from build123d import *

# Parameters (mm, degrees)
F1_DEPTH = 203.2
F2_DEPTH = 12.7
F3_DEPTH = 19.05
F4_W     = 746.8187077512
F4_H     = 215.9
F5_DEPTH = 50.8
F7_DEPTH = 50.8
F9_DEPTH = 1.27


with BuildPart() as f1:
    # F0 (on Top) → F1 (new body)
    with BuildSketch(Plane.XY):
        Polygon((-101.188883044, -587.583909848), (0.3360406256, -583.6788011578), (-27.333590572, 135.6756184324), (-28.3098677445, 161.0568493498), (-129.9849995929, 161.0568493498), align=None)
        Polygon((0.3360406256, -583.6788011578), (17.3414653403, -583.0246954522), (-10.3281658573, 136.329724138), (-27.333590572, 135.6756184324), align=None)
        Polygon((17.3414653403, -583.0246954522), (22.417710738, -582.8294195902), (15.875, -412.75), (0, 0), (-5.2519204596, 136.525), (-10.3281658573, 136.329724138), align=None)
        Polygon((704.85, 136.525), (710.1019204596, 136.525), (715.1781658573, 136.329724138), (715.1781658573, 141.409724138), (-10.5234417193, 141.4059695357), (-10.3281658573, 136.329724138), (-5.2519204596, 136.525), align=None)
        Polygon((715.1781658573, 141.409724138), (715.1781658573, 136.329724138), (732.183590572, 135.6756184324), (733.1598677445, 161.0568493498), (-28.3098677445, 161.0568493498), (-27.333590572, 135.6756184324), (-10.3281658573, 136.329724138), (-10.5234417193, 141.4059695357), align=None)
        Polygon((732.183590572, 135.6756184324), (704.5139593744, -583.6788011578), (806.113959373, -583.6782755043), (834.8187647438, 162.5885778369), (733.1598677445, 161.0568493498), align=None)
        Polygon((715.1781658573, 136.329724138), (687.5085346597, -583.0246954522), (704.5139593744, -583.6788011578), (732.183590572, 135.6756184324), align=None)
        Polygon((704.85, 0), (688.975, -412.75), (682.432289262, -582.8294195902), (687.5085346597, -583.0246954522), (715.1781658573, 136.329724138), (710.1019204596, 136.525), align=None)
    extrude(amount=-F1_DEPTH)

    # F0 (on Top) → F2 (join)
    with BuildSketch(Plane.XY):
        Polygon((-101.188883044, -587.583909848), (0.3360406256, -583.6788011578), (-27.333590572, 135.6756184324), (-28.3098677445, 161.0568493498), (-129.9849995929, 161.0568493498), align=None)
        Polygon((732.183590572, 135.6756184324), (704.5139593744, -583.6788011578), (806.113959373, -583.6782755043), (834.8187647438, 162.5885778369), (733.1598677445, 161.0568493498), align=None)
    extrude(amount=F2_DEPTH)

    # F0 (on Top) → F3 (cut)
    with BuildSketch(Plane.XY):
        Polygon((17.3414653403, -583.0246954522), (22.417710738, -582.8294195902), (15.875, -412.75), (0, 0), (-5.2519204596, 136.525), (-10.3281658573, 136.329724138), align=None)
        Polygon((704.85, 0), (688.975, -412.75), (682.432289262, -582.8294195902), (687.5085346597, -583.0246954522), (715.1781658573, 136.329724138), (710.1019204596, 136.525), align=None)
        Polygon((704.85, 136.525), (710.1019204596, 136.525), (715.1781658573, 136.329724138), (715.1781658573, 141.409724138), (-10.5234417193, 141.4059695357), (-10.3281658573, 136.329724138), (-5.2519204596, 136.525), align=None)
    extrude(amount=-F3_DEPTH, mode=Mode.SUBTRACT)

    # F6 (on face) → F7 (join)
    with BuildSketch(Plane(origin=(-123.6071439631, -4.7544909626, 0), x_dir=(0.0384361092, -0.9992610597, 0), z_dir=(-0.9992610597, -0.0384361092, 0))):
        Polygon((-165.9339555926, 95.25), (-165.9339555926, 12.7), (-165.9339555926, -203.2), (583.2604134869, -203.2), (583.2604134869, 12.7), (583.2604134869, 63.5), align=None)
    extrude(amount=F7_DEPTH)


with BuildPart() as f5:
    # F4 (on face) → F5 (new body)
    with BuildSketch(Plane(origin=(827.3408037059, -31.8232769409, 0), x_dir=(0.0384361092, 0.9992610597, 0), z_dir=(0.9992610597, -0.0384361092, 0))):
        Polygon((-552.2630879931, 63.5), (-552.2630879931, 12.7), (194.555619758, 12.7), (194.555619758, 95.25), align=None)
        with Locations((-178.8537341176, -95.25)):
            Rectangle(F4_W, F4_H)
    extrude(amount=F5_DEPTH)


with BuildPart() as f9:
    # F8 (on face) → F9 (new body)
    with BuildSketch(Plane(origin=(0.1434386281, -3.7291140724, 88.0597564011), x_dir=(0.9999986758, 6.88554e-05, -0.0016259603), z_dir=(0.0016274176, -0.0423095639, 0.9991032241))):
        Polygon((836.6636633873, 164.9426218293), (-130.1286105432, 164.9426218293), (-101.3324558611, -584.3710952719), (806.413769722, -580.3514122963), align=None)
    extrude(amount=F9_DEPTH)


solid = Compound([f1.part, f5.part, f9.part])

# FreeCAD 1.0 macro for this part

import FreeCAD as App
import Part
import Sketcher
from FreeCAD import Vector
Q = App.Units.Quantity

doc = App.newDocument("Part")
params = doc.addObject("Spreadsheet::Sheet", "Params")
for row, (alias, value) in enumerate([
    ("sketch1_length", "4 in"),
    ("sketch1_length2", "0.2 in"),
    ("sketch1_length3", "4.67 in"),
    ("sketch1_length4", "0.67 in"),
    ("pad1_length", "8 in"),
    ("sketch2_length", "4 in"),
    ("sketch2_length2", "1 in"),
    ("pad2_length", "0.5 in"),
    ("sketch3_height", "0.2 in"),
    ("sketch3_length", "0.2 in"),
    ("pocket1_length", "0.75 in"),
    ("sketch4_height", "10.5 in"),
    ("sketch4_height2", "11.75 in"),
    ("pad3_length", "2 in"),
    ("sketch5_height", "10.5 in"),
    ("sketch5_height2", "11.75 in"),
    ("pad4_length", "2 in"),
    ("pad5_length", "0.05 in"),
], start=1):
    params.set(f"A{row}", alias)
    params.set(f"B{row}", "=" + value)
    params.setAlias(f"B{row}", alias)

body = doc.addObject("PartDesign::Body", "Body")

sketch1 = body.newObject("Sketcher::SketchObject", "Sketch")
sketch1.AttachmentSupport = (doc.getObject("XY_Plane"), [""])
sketch1.MapMode = "FlatFace"
sketch1.addGeometry([
    Part.LineSegment(Vector(-101.188883, -587.58391, 0), Vector(17.341465, -583.024695, 0)),
    Part.LineSegment(Vector(17.341465, -583.024695, 0), Vector(22.417711, -582.82942, 0)),
    Part.LineSegment(Vector(22.417711, -582.82942, 0), Vector(15.875, -412.75, 0)),
    Part.LineSegment(Vector(15.875, -412.75, 0), Vector(0, 0, 0)),
    Part.LineSegment(Vector(0, 0, 0), Vector(-5.25192, 136.525, 0)),
    Part.LineSegment(Vector(-5.25192, 136.525, 0), Vector(710.10192, 136.525, 0)),
    Part.LineSegment(Vector(710.10192, 136.525, 0), Vector(704.85, 0, 0)),
    Part.LineSegment(Vector(704.85, 0, 0), Vector(688.975, -412.75, 0)),
    Part.LineSegment(Vector(688.975, -412.75, 0), Vector(682.432289, -582.82942, 0)),
    Part.LineSegment(Vector(682.432289, -582.82942, 0), Vector(687.508535, -583.024695, 0)),
    Part.LineSegment(Vector(687.508535, -583.024695, 0), Vector(704.513959, -583.678801, 0)),
    Part.LineSegment(Vector(704.513959, -583.678801, 0), Vector(806.113959, -583.678276, 0)),
    Part.LineSegment(Vector(806.113959, -583.678276, 0), Vector(834.818765, 162.588578, 0)),
    Part.LineSegment(Vector(834.818765, 162.588578, 0), Vector(733.159868, 161.056849, 0)),
    Part.LineSegment(Vector(733.159868, 161.056849, 0), Vector(-129.985, 161.056849, 0)),
    Part.LineSegment(Vector(-129.985, 161.056849, 0), Vector(-101.188883, -587.58391, 0)),
], False)
sketch1.addConstraint([
    Sketcher.Constraint("Coincident", 0, 2, 1, 1),
    Sketcher.Constraint("Coincident", 1, 2, 2, 1),
    Sketcher.Constraint("Coincident", 2, 2, 3, 1),
    Sketcher.Constraint("Coincident", 3, 2, 4, 1),
    Sketcher.Constraint("Coincident", 4, 2, 5, 1),
    Sketcher.Constraint("Coincident", 5, 2, 6, 1),
    Sketcher.Constraint("Coincident", 6, 2, 7, 1),
    Sketcher.Constraint("Coincident", 7, 2, 8, 1),
    Sketcher.Constraint("Coincident", 8, 2, 9, 1),
    Sketcher.Constraint("Coincident", 9, 2, 10, 1),
    Sketcher.Constraint("Coincident", 10, 2, 11, 1),
    Sketcher.Constraint("Coincident", 11, 2, 12, 1),
    Sketcher.Constraint("Coincident", 12, 2, 13, 1),
    Sketcher.Constraint("Coincident", 13, 2, 14, 1),
    Sketcher.Constraint("Coincident", 14, 2, 15, 1),
    Sketcher.Constraint("Coincident", 15, 2, 0, 1),
    Sketcher.Constraint("Horizontal", 5),
    Sketcher.Constraint("Horizontal", 14),
    Sketcher.Constraint("Coincident", 3, 2, -1, 1),
    Sketcher.Constraint("PointOnObject", 6, 2, -1),
    Sketcher.Constraint("Perpendicular", 1, 2),
    Sketcher.Constraint("Parallel", 2, 4),
    Sketcher.Constraint("Parallel", 6, 8),
    Sketcher.Constraint("Perpendicular", 8, 9),
    Sketcher.Constraint("Perpendicular", 10, 12),
    Sketcher.Constraint("Perpendicular", 0, 15),
    Sketcher.Constraint("Horizontal", 2, 2, 7, 2),
    Sketcher.Constraint("Horizontal", 1, 2, 8, 2),
    Sketcher.Constraint("Horizontal", 0, 2, 9, 2),
    Sketcher.Constraint("Equal", 4, 6),
    Sketcher.Constraint("Equal", 3, 7),
    Sketcher.Constraint("Distance", 11, Q("4 in")),
    Sketcher.Constraint("Distance", 1, Q("0.2 in")),
    Sketcher.Constraint("DistanceX", 2, 2, 7, 2, Q("26.5 in")),
    Sketcher.Constraint("Distance", 0, Q("4.67 in")),
    Sketcher.Constraint("Distance", 10, Q("0.67 in")),
    Sketcher.Constraint("DistanceY", 2, 2, -1, 1, Q("16.25 in")),
    Sketcher.Constraint("DistanceX", -1, 1, 6, 2, Q("27.75 in")),
    Sketcher.Constraint("DistanceY", -1, 1, 4, 2, Q("5.375 in")),
    Sketcher.Constraint("DistanceX", 5, 1, 5, 2, 715.353841),
    Sketcher.Constraint("DistanceY", 10, 2, -1, 1, 583.678801),
    Sketcher.Constraint("DistanceX", 14, 2, -1, 1, 129.985),
    Sketcher.Constraint("Distance", 15, 749.194369),
    Sketcher.Constraint("DistanceX", 14, 2, 14, 1, 863.144867),
    Sketcher.Constraint("DistanceY", 1, 2, -1, 1, 582.82942),
    Sketcher.Constraint("DistanceY", 11, 2, 9, 2, 0.65358),
    Sketcher.Constraint("DistanceY", 10, 2, 12, 2, 746.267379),
])
sketch1.setExpression("Constraints[31]", "Params.sketch1_length")
sketch1.setExpression("Constraints[32]", "Params.sketch1_length2")
sketch1.setExpression("Constraints[34]", "Params.sketch1_length3")
sketch1.setExpression("Constraints[35]", "Params.sketch1_length4")
pad1 = body.newObject("PartDesign::Pad", "Pad")
pad1.Profile = sketch1
pad1.setExpression("Length", "Params.pad1_length")
pad1.Reversed = True

sketch2 = body.newObject("Sketcher::SketchObject", "Sketch001")
sketch2.AttachmentSupport = (doc.getObject("XY_Plane"), [""])
sketch2.MapMode = "FlatFace"
sketch2.addGeometry([
    Part.LineSegment(Vector(-101, -588, 0), Vector(0, -584, 0)),
    Part.LineSegment(Vector(0, -584, 0), Vector(-27, 136, 0)),
    Part.LineSegment(Vector(-27, 136, 0), Vector(-28, 161, 0)),
    Part.LineSegment(Vector(-28, 161, 0), Vector(-130, 161, 0)),
    Part.LineSegment(Vector(-130, 161, 0), Vector(-101, -588, 0)),
    Part.LineSegment(Vector(732, 136, 0), Vector(705, -584, 0)),
    Part.LineSegment(Vector(705, -584, 0), Vector(806, -584, 0)),
    Part.LineSegment(Vector(806, -584, 0), Vector(835, 163, 0)),
    Part.LineSegment(Vector(835, 163, 0), Vector(733, 161, 0)),
    Part.LineSegment(Vector(733, 161, 0), Vector(732, 136, 0)),
], False)
sketch2.addConstraint([
    Sketcher.Constraint("Coincident", 0, 2, 1, 1),
    Sketcher.Constraint("Coincident", 1, 2, 2, 1),
    Sketcher.Constraint("Coincident", 2, 2, 3, 1),
    Sketcher.Constraint("Coincident", 3, 2, 4, 1),
    Sketcher.Constraint("Coincident", 4, 2, 0, 1),
    Sketcher.Constraint("Coincident", 5, 2, 6, 1),
    Sketcher.Constraint("Coincident", 6, 2, 7, 1),
    Sketcher.Constraint("Coincident", 7, 2, 8, 1),
    Sketcher.Constraint("Coincident", 8, 2, 9, 1),
    Sketcher.Constraint("Coincident", 9, 2, 5, 1),
    Sketcher.Constraint("Horizontal", 3),
    Sketcher.Constraint("Perpendicular", 0, 1),
    Sketcher.Constraint("Parallel", 1, 2),
    Sketcher.Constraint("Parallel", 2, 4),
    Sketcher.Constraint("Parallel", 5, 7),
    Sketcher.Constraint("Parallel", 7, 9),
    Sketcher.Constraint("Horizontal", 0, 2, 5, 2),
    Sketcher.Constraint("Horizontal", 3, 2, 8, 2),
    Sketcher.Constraint("Horizontal", 1, 2, 9, 2),
    Sketcher.Constraint("Equal", 1, 5),
    Sketcher.Constraint("Equal", 0, 6),
    Sketcher.Constraint("Distance", 0, Q("4 in")),
    Sketcher.Constraint("Distance", 2, Q("1 in")),
    Sketcher.Constraint("DistanceX", 3, 2, 7, 2, Q("37.9844002 in")),
    Sketcher.Constraint("DistanceY", 0, 2, -1, 1, 583.678801),
    Sketcher.Constraint("DistanceX", 3, 2, -1, 1, 129.985),
    Sketcher.Constraint("Distance", 4, 749.194369),
    Sketcher.Constraint("DistanceX", -1, 1, 0, 2, 0.336041),
    Sketcher.Constraint("DistanceX", -1, 1, 5, 2, 704.513959),
    Sketcher.Constraint("DistanceY", 5, 2, 7, 2, 746.267379),
])
sketch2.setExpression("Constraints[21]", "Params.sketch2_length")
sketch2.setExpression("Constraints[22]", "Params.sketch2_length2")
pad2 = body.newObject("PartDesign::Pad", "Pad001")
pad2.Profile = sketch2
pad2.setExpression("Length", "Params.pad2_length")

sketch3 = body.newObject("Sketcher::SketchObject", "Sketch002")
sketch3.AttachmentSupport = (doc.getObject("XY_Plane"), [""])
sketch3.MapMode = "FlatFace"
sketch3.addGeometry([
    Part.LineSegment(Vector(17, -583, 0), Vector(22, -583, 0)),
    Part.LineSegment(Vector(22, -583, 0), Vector(16, -413, 0)),
    Part.LineSegment(Vector(16, -413, 0), Vector(0, 0, 0)),
    Part.LineSegment(Vector(0, 0, 0), Vector(-5, 137, 0)),
    Part.LineSegment(Vector(-5, 137, 0), Vector(710, 137, 0)),
    Part.LineSegment(Vector(710, 137, 0), Vector(705, 0, 0)),
    Part.LineSegment(Vector(705, 0, 0), Vector(689, -413, 0)),
    Part.LineSegment(Vector(689, -413, 0), Vector(682, -583, 0)),
    Part.LineSegment(Vector(682, -583, 0), Vector(688, -583, 0)),
    Part.LineSegment(Vector(688, -583, 0), Vector(715, 136, 0)),
    Part.LineSegment(Vector(715, 136, 0), Vector(715, 141, 0)),
    Part.LineSegment(Vector(715, 141, 0), Vector(-11, 141, 0)),
    Part.LineSegment(Vector(-11, 141, 0), Vector(-10, 136, 0)),
    Part.LineSegment(Vector(-10, 136, 0), Vector(17, -583, 0)),
], False)
sketch3.addConstraint([
    Sketcher.Constraint("Coincident", 0, 2, 1, 1),
    Sketcher.Constraint("Coincident", 1, 2, 2, 1),
    Sketcher.Constraint("Coincident", 2, 2, 3, 1),
    Sketcher.Constraint("Coincident", 3, 2, 4, 1),
    Sketcher.Constraint("Coincident", 4, 2, 5, 1),
    Sketcher.Constraint("Coincident", 5, 2, 6, 1),
    Sketcher.Constraint("Coincident", 6, 2, 7, 1),
    Sketcher.Constraint("Coincident", 7, 2, 8, 1),
    Sketcher.Constraint("Coincident", 8, 2, 9, 1),
    Sketcher.Constraint("Coincident", 9, 2, 10, 1),
    Sketcher.Constraint("Coincident", 10, 2, 11, 1),
    Sketcher.Constraint("Coincident", 11, 2, 12, 1),
    Sketcher.Constraint("Coincident", 12, 2, 13, 1),
    Sketcher.Constraint("Coincident", 13, 2, 0, 1),
    Sketcher.Constraint("Horizontal", 4),
    Sketcher.Constraint("Vertical", 10),
    Sketcher.Constraint("Coincident", 2, 2, -1, 1),
    Sketcher.Constraint("PointOnObject", 5, 2, -1),
    Sketcher.Constraint("Perpendicular", 0, 1),
    Sketcher.Constraint("Parallel", 1, 3),
    Sketcher.Constraint("Parallel", 5, 7),
    Sketcher.Constraint("Perpendicular", 7, 8),
    Sketcher.Constraint("Parallel", 3, 12),
    Sketcher.Constraint("Horizontal", 1, 2, 6, 2),
    Sketcher.Constraint("Horizontal", 0, 2, 7, 2),
    Sketcher.Constraint("Horizontal", 9, 2, 12, 2),
    Sketcher.Constraint("Horizontal", 8, 2, 13, 2),
    Sketcher.Constraint("Equal", 3, 5),
    Sketcher.Constraint("Equal", 2, 6),
    Sketcher.Constraint("Equal", 8, 12),
    Sketcher.Constraint("Equal", 9, 13),
    Sketcher.Constraint("DistanceY", 10, 1, 10, 2, Q("0.2 in")),
    Sketcher.Constraint("Distance", 0, Q("0.2 in")),
    Sketcher.Constraint("DistanceX", 1, 2, 6, 2, Q("26.5 in")),
    Sketcher.Constraint("DistanceY", 1, 2, -1, 1, Q("16.25 in")),
    Sketcher.Constraint("DistanceX", -1, 1, 5, 2, Q("27.75 in")),
    Sketcher.Constraint("DistanceY", -1, 1, 3, 2, Q("5.375 in")),
    Sketcher.Constraint("DistanceX", 4, 1, 4, 2, 715.353841),
    Sketcher.Constraint("DistanceX", -1, 1, 0, 2, 22.417711),
    Sketcher.Constraint("DistanceX", 11, 2, -1, 1, 10.523442),
    Sketcher.Constraint("DistanceY", -1, 1, 11, 2, 141.40597),
])
sketch3.setExpression("Constraints[31]", "Params.sketch3_height")
sketch3.setExpression("Constraints[32]", "Params.sketch3_length")
pocket1 = body.newObject("PartDesign::Pocket", "Pocket")
pocket1.Profile = sketch3
pocket1.setExpression("Length", "Params.pocket1_length")

sketch4 = body.newObject("Sketcher::SketchObject", "Sketch003")
sketch4.Placement = App.Placement(Vector(-123.607144, -4.754491, 0), App.Rotation(Vector(0.038436109, -0.99926106, 0), Vector(0, 0, 1.000000001), Vector(-0.99926106, -0.038436109, 0), "ZXY"))
sketch4.addGeometry([
    Part.LineSegment(Vector(-166, 95, 0), Vector(-166, -203, 0)),
    Part.LineSegment(Vector(-166, -203, 0), Vector(583, -203, 0)),
    Part.LineSegment(Vector(583, -203, 0), Vector(583, 64, 0)),
    Part.LineSegment(Vector(583, 64, 0), Vector(-166, 95, 0)),
], False)
sketch4.addConstraint([
    Sketcher.Constraint("Coincident", 0, 2, 1, 1),
    Sketcher.Constraint("Coincident", 1, 2, 2, 1),
    Sketcher.Constraint("Coincident", 2, 2, 3, 1),
    Sketcher.Constraint("Coincident", 3, 2, 0, 1),
    Sketcher.Constraint("Vertical", 0),
    Sketcher.Constraint("Horizontal", 1),
    Sketcher.Constraint("Vertical", 2),
    Sketcher.Constraint("DistanceY", 2, 1, 2, 2, Q("10.5 in")),
    Sketcher.Constraint("DistanceY", 0, 2, -1, 1, Q("8 in")),
    Sketcher.Constraint("DistanceY", 0, 2, 0, 1, Q("11.75 in")),
    Sketcher.Constraint("DistanceX", 1, 1, 1, 2, 749.194369),
    Sketcher.Constraint("DistanceX", 0, 2, -1, 1, 165.933956),
])
sketch4.setExpression("Constraints[7]", "Params.sketch4_height")
sketch4.setExpression("Constraints[9]", "Params.sketch4_height2")
pad3 = body.newObject("PartDesign::Pad", "Pad002")
pad3.Profile = sketch4
pad3.setExpression("Length", "Params.pad3_length")
body2 = doc.addObject("PartDesign::Body", "Body001")

sketch5 = body2.newObject("Sketcher::SketchObject", "Sketch004")
sketch5.Placement = App.Placement(Vector(827.340804, -31.823277, 0), App.Rotation(Vector(0.038436109, 0.99926106, 0), Vector(0, 0, 1.000000001), Vector(0.99926106, -0.038436109, 0), "ZXY"))
sketch5.addGeometry([
    Part.LineSegment(Vector(-552, 64, 0), Vector(-552, -203, 0)),
    Part.LineSegment(Vector(-552, -203, 0), Vector(195, -203, 0)),
    Part.LineSegment(Vector(195, -203, 0), Vector(195, 95, 0)),
    Part.LineSegment(Vector(195, 95, 0), Vector(-552, 64, 0)),
], False)
sketch5.addConstraint([
    Sketcher.Constraint("Coincident", 0, 2, 1, 1),
    Sketcher.Constraint("Coincident", 1, 2, 2, 1),
    Sketcher.Constraint("Coincident", 2, 2, 3, 1),
    Sketcher.Constraint("Coincident", 3, 2, 0, 1),
    Sketcher.Constraint("Vertical", 0),
    Sketcher.Constraint("Horizontal", 1),
    Sketcher.Constraint("Vertical", 2),
    Sketcher.Constraint("DistanceY", 0, 2, 0, 1, Q("10.5 in")),
    Sketcher.Constraint("DistanceY", 0, 2, -1, 1, Q("8 in")),
    Sketcher.Constraint("DistanceY", 2, 1, 2, 2, Q("11.75 in")),
    Sketcher.Constraint("DistanceX", 1, 1, 1, 2, 746.818708),
    Sketcher.Constraint("DistanceX", 0, 2, -1, 1, 552.263088),
])
sketch5.setExpression("Constraints[7]", "Params.sketch5_height")
sketch5.setExpression("Constraints[9]", "Params.sketch5_height2")
pad4 = body2.newObject("PartDesign::Pad", "Pad003")
pad4.Profile = sketch5
pad4.setExpression("Length", "Params.pad4_length")
body3 = doc.addObject("PartDesign::Body", "Body002")

sketch6 = body3.newObject("Sketcher::SketchObject", "Sketch005")
sketch6.Placement = App.Placement(Vector(0.143439, -3.729114, 88.059756), App.Rotation(Vector(0.999998676, 0.000068855, -0.00162596), Vector(0, 0.999104547, 0.04230962), Vector(0.001627418, -0.042309564, 0.999103224), "ZXY"))
sketch6.addGeometry([
    Part.LineSegment(Vector(837, 165, 0), Vector(-130, 165, 0)),
    Part.LineSegment(Vector(-130, 165, 0), Vector(-101, -584, 0)),
    Part.LineSegment(Vector(-101, -584, 0), Vector(806, -580, 0)),
    Part.LineSegment(Vector(806, -580, 0), Vector(837, 165, 0)),
], False)
sketch6.addConstraint([
    Sketcher.Constraint("Coincident", 0, 2, 1, 1),
    Sketcher.Constraint("Coincident", 1, 2, 2, 1),
    Sketcher.Constraint("Coincident", 2, 2, 3, 1),
    Sketcher.Constraint("Coincident", 3, 2, 0, 1),
    Sketcher.Constraint("Horizontal", 0),
    Sketcher.Constraint("Distance", 1, 749.866832),
    Sketcher.Constraint("Distance", 3, 745.907671),
    Sketcher.Constraint("DistanceX", 0, 2, 0, 1, 966.792274),
    Sketcher.Constraint("DistanceX", 0, 2, -1, 1, 130.128611),
    Sketcher.Constraint("DistanceY", -1, 1, 0, 2, 164.942622),
    Sketcher.Constraint("DistanceX", -1, 1, 2, 2, 806.41377),
    Sketcher.Constraint("DistanceX", 1, 2, 3, 2, 937.99612),
])
pad5 = body3.newObject("PartDesign::Pad", "Pad004")
pad5.Profile = sketch6
pad5.setExpression("Length", "Params.pad5_length")

doc.recompute()
